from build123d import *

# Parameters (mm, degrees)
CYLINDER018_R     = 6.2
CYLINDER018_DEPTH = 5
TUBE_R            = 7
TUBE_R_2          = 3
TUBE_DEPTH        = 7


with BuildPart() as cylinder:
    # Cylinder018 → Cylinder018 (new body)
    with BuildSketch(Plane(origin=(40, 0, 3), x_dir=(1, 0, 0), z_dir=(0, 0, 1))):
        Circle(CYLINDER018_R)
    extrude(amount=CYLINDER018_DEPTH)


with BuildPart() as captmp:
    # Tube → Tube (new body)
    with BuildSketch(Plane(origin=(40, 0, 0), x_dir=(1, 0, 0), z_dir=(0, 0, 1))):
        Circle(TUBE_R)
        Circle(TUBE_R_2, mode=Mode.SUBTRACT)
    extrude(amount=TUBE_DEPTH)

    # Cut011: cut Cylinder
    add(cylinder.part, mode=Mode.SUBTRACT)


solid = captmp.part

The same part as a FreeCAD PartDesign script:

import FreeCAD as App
import Part
import Sketcher

V = App.Vector
Q = App.Units.Quantity

doc = App.newDocument("Part")
body = doc.addObject("PartDesign::Body", "Body")

# Sketch on XY plane
sketch1 = body.newObject("Sketcher::SketchObject", "Sketch")
sketch1.AttachmentSupport = (doc.getObject("XY_Plane"), [""])
sketch1.MapMode = "FlatFace"
sketch1.AttachmentOffset = App.Placement(V(0, 0, 3), App.Rotation())
sketch1.addGeometry(Part.Circle(V(40, 0, 0), V(0, 0, 1), 6), False)
sketch1.addConstraint(Sketcher.Constraint("PointOnObject", 0, 3, -1))
sketch1.addConstraint(Sketcher.Constraint("Diameter", 0, Q("12.4 mm")))
sketch1.addConstraint(Sketcher.Constraint("DistanceX", -1, 1, 0, 3, Q("40 mm")))
pad1 = body.newObject("PartDesign::Pad", "Pad")
pad1.Profile = sketch1
pad1.Length = 5
body2 = doc.addObject("PartDesign::Body", "Body001")

# Sketch on XY plane
sketch2 = body2.newObject("Sketcher::SketchObject", "Sketch001")
sketch2.AttachmentSupport = (doc.getObject("XY_Plane001"), [""])
sketch2.MapMode = "FlatFace"
sketch2.addGeometry(Part.Circle(V(40, 0, 0), V(0, 0, 1), 7), False)
sketch2.addGeometry(Part.Circle(V(40, 0, 0), V(0, 0, 1), 3), False)
sketch2.addConstraint(Sketcher.Constraint("Coincident", 1, 3, 0, 3))
sketch2.addConstraint(Sketcher.Constraint("PointOnObject", 0, 3, -1))
sketch2.addConstraint(Sketcher.Constraint("Diameter", 0, Q("14 mm")))
sketch2.addConstraint(Sketcher.Constraint("Diameter", 1, Q("6 mm")))
sketch2.addConstraint(Sketcher.Constraint("DistanceX", -1, 1, 0, 3, Q("40 mm")))
pad2 = body2.newObject("PartDesign::Pad", "Pad001")
pad2.Profile = sketch2
pad2.Length = 7
doc.recompute()

boolean = body2.newObject("PartDesign::Boolean", "Boolean")
boolean.Type = "Cut"
boolean.addObjects([body])

doc.recompute()
